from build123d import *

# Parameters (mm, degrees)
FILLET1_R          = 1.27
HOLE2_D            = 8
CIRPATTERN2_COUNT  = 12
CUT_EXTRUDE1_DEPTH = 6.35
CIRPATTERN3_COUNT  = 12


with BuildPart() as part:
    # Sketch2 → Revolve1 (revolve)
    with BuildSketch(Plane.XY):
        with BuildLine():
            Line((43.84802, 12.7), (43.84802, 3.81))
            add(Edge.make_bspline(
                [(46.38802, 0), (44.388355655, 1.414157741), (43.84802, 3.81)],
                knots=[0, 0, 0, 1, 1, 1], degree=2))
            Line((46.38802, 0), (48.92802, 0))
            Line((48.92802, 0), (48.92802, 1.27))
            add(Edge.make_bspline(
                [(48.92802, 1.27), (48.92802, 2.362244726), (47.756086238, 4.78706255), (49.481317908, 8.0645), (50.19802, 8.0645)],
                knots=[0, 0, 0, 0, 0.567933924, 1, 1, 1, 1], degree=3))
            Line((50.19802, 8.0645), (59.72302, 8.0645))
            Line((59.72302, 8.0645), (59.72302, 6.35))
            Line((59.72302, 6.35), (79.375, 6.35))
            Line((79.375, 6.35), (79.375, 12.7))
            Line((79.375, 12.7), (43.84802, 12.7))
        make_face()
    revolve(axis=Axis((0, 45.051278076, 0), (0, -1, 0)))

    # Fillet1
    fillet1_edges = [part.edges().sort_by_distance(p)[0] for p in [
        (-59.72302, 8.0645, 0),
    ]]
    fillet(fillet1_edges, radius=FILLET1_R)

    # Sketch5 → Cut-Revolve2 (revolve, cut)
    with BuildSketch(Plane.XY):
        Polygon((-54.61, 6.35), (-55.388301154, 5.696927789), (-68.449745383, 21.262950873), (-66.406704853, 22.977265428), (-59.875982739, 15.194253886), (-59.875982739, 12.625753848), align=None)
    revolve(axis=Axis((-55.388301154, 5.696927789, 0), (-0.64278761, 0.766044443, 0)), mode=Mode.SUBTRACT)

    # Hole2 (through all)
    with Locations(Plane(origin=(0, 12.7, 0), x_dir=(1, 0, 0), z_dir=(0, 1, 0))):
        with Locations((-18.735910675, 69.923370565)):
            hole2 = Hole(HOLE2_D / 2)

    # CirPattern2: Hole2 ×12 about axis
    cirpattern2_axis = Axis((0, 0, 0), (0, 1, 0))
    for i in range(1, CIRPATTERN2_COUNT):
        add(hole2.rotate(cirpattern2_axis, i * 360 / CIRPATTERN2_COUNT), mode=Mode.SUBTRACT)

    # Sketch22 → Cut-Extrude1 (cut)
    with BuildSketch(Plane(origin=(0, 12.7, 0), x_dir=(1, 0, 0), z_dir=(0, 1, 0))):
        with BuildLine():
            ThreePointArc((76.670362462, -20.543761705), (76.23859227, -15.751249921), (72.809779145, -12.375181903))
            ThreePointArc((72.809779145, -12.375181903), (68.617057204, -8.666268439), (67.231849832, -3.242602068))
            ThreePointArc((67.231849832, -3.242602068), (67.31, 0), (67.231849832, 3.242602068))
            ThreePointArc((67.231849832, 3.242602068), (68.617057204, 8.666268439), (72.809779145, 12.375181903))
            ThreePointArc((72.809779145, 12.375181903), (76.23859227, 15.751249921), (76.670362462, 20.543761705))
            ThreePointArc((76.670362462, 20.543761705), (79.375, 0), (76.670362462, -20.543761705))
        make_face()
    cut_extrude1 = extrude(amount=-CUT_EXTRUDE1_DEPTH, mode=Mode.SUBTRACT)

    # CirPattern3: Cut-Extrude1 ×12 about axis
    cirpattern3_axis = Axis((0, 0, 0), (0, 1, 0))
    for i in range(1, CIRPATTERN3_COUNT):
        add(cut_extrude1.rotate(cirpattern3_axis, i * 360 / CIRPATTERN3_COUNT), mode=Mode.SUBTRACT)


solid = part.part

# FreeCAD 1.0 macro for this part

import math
import FreeCAD as App
import Part
import Sketcher

V = App.Vector
Q = App.Units.Quantity


def edges_at(feature, points):
    """Names of the edges that pass closest to the given points."""
    edges = feature.Shape.Edges
    near = lambda p: min(range(len(edges)), key=lambda i: edges[i].distToShape(Part.Vertex(*p))[0])
    return sorted({f"Edge{near(p) + 1}" for p in points})


def add_polygon(sketch, points):
    """Adds a closed chain of lines whose ends are joined by coincident constraints."""
    first, n = sketch.GeometryCount, len(points)
    for a, b in zip(points, points[1:] + points[:1]):
        sketch.addGeometry(Part.LineSegment(App.Vector(*a, 0), App.Vector(*b, 0)), False)
    for i in range(n):
        sketch.addConstraint(Sketcher.Constraint("Coincident", first + i, 2, first + (i + 1) % n, 1))

doc = App.newDocument("Part")
body = doc.addObject("PartDesign::Body", "Body")

# Sketch on XY plane
sketch1 = doc.addObject("Sketcher::SketchObject", "Sketch")
body.addObject(sketch1)
sketch1.AttachmentSupport = (doc.XY_Plane, [""])
sketch1.MapMode = "FlatFace"
sketch1.addGeometry(Part.LineSegment(V(43.84802, 12.7, 0), V(43.84802, 3.81, 0)), False)
sketch1.addGeometry(Part.BSplineCurve([V(46.38802, 0, 0), V(44.388356, 1.414158, 0), V(43.84802, 3.81, 0)], [3, 3], [0, 1], False, 2, [1, 1, 1], False), False)
sketch1.addGeometry(Part.LineSegment(V(46.38802, 0, 0), V(48.92802, 0, 0)), False)
sketch1.addGeometry(Part.LineSegment(V(48.92802, 0, 0), V(48.92802, 1.27, 0)), False)
sketch1.addGeometry(Part.BSplineCurve([V(48.92802, 1.27, 0), V(48.92802, 2.362245, 0), V(47.756086, 4.787063, 0), V(49.481318, 8.0645, 0), V(50.19802, 8.0645, 0)], [4, 1, 4], [0, 0.567933924, 1], False, 3, [1, 1, 1, 1, 1], False), False)
sketch1.addGeometry(Part.LineSegment(V(50.19802, 8.0645, 0), V(59.72302, 8.0645, 0)), False)
sketch1.addGeometry(Part.LineSegment(V(59.72302, 8.0645, 0), V(59.72302, 6.35, 0)), False)
sketch1.addGeometry(Part.LineSegment(V(59.72302, 6.35, 0), V(79.375, 6.35, 0)), False)
sketch1.addGeometry(Part.LineSegment(V(79.375, 6.35, 0), V(79.375, 12.7, 0)), False)
sketch1.addGeometry(Part.LineSegment(V(79.375, 12.7, 0), V(43.84802, 12.7, 0)), False)
sketch1.addConstraint(Sketcher.Constraint("Block", 1))
sketch1.addConstraint(Sketcher.Constraint("Block", 4))
sketch1.addConstraint(Sketcher.Constraint("Coincident", 0, 2, 1, 2))
sketch1.addConstraint(Sketcher.Constraint("Coincident", 1, 1, 2, 1))
sketch1.addConstraint(Sketcher.Constraint("Coincident", 2, 2, 3, 1))
sketch1.addConstraint(Sketcher.Constraint("Coincident", 3, 2, 4, 1))
sketch1.addConstraint(Sketcher.Constraint("Coincident", 4, 2, 5, 1))
sketch1.addConstraint(Sketcher.Constraint("Coincident", 5, 2, 6, 1))
sketch1.addConstraint(Sketcher.Constraint("Coincident", 6, 2, 7, 1))
sketch1.addConstraint(Sketcher.Constraint("Coincident", 7, 2, 8, 1))
sketch1.addConstraint(Sketcher.Constraint("Coincident", 8, 2, 9, 1))
sketch1.addConstraint(Sketcher.Constraint("Coincident", 9, 2, 0, 1))
sketch1.addConstraint(Sketcher.Constraint("Vertical", 0))
sketch1.addConstraint(Sketcher.Constraint("Horizontal", 2))
sketch1.addConstraint(Sketcher.Constraint("Vertical", 3))
sketch1.addConstraint(Sketcher.Constraint("Horizontal", 5))
sketch1.addConstraint(Sketcher.Constraint("Vertical", 6))
sketch1.addConstraint(Sketcher.Constraint("Horizontal", 7))
sketch1.addConstraint(Sketcher.Constraint("Vertical", 8))
sketch1.addConstraint(Sketcher.Constraint("Horizontal", 9))
sketch1.addConstraint(Sketcher.Constraint("DistanceY", 0, 2, 0, 1, Q("0.35 in")))
sketch1.addConstraint(Sketcher.Constraint("DistanceY", 8, 1, 8, 2, Q("0.25 in")))
sketch1.addConstraint(Sketcher.Constraint("DistanceX", 5, 1, 5, 2, Q("0.375 in")))
sketch1.addConstraint(Sketcher.Constraint("DistanceX", 7, 1, 7, 2, Q("0.7737 in")))
revolution = doc.addObject("PartDesign::Revolution", "Revolution")
body.addObject(revolution)
revolution.Profile = sketch1
revolution.ReferenceAxis = (sketch1, ["V_Axis"])
revolution.Angle = 360
doc.recompute()

fillet = doc.addObject("PartDesign::Fillet", "Fillet")
body.addObject(fillet)
fillet.Base = (revolution, edges_at(revolution, [(-59.723, 8.065, 0)]))
fillet.Radius = Q("0.05 in")

# Sketch on XY plane
sketch2 = doc.addObject("Sketcher::SketchObject", "Sketch001")
body.addObject(sketch2)
sketch2.AttachmentSupport = (doc.XY_Plane, [""])
sketch2.MapMode = "FlatFace"
add_polygon(sketch2, [(-55.4, 5.7), (-54.6, 6.3), (-59.9, 12.6), (-59.9, 15.2), (-66.4, 23), (-68.4, 21.3)])  # lines 0-5
sketch2.addGeometry(Part.LineSegment(V(-55.4, 5.7, 0), V(-68.4, 21.3, 0)), True)  # axis
sketch2.addConstraint(Sketcher.Constraint("Vertical", 2))
sketch2.addConstraint(Sketcher.Constraint("Coincident", 6, 1, 5, 2))
sketch2.addConstraint(Sketcher.Constraint("Coincident", 6, 2, 4, 2))
sketch2.addConstraint(Sketcher.Constraint("Perpendicular", 0, 1))
sketch2.addConstraint(Sketcher.Constraint("Parallel", 1, 3))
sketch2.addConstraint(Sketcher.Constraint("Perpendicular", 3, 4))
sketch2.addConstraint(Sketcher.Constraint("Perpendicular", 4, 5))
sketch2.addConstraint(Sketcher.Constraint("Angle", 0, Q("40 deg")))
sketch2.addConstraint(Sketcher.Constraint("Distance", 3, Q("0.4 in")))
sketch2.addConstraint(Sketcher.Constraint("Distance", 5, Q("0.8 in")))
sketch2.addConstraint(Sketcher.Constraint("Distance", 0, Q("0.04 in")))
sketch2.addConstraint(Sketcher.Constraint("DistanceX", 0, 2, -1, 1, Q("2.15 in")))
sketch2.addConstraint(Sketcher.Constraint("DistanceY", -1, 1, 0, 2, Q("0.25 in")))
sketch2.addConstraint(Sketcher.Constraint("Distance", 4, Q("0.105 in")))
groove = doc.addObject("PartDesign::Groove", "Groove")
body.addObject(groove)
groove.Profile = sketch2
groove.ReferenceAxis = (sketch2, ["Axis0"])
groove.Angle = 360

# Sketch on XZ plane
sketch3 = doc.addObject("Sketcher::SketchObject", "Sketch002")
body.addObject(sketch3)
sketch3.AttachmentSupport = (doc.XZ_Plane, [""])
sketch3.MapMode = "FlatFace"
sketch3.AttachmentOffset = App.Placement(V(0, 0, -0.5 * 25.4), App.Rotation())
sketch3.addGeometry(Part.Circle(V(-18.7, -69.9, 0), V(0, 0, 1), 4), False)
sketch3.addConstraint(Sketcher.Constraint("Diameter", 0, 8.0))
sketch3.addConstraint(Sketcher.Constraint("DistanceX", 0, 3, -1, 1, 18.735911))
sketch3.addConstraint(Sketcher.Constraint("DistanceY", 0, 3, -1, 1, 69.923371))
doc.recompute()
hole = doc.addObject("PartDesign::Hole", "Hole")
body.addObject(hole)
hole.Profile = sketch3
hole.ThreadType = "None"
hole.Diameter = 8
hole.DepthType = "ThroughAll"
hole.Reversed = True
doc.recompute()

polarpattern = doc.addObject("PartDesign::PolarPattern", "PolarPattern")
body.addObject(polarpattern)
polarpattern.Originals = [hole]
polarpattern.Axis = (doc.Y_Axis, [""])
polarpattern.Angle = 360
polarpattern.Occurrences = 12
body.Tip = polarpattern

# Sketch on XZ plane
sketch4 = doc.addObject("Sketcher::SketchObject", "Sketch003")
body.addObject(sketch4)
sketch4.AttachmentSupport = (doc.XZ_Plane, [""])
sketch4.MapMode = "FlatFace"
sketch4.AttachmentOffset = App.Placement(V(0, 0, -0.5 * 25.4), App.Rotation())
sketch4.addGeometry(Part.ArcOfCircle(Part.Circle(V(70, 19, 0), V(0, 0, 1), 7), math.radians(-66), math.radians(15)), False)
sketch4.addGeometry(Part.ArcOfCircle(Part.Circle(V(0, 0, 0), V(0, 0, 1), 79), math.radians(-15), math.radians(15)), False)
sketch4.addGeometry(Part.ArcOfCircle(Part.Circle(V(70, -19, 0), V(0, 0, 1), 7), math.radians(-15), math.radians(66)), False)
sketch4.addGeometry(Part.ArcOfCircle(Part.Circle(V(77, -4, 0), V(0, 0, 1), 10), math.radians(177), math.radians(246)), False)
sketch4.addGeometry(Part.ArcOfCircle(Part.Circle(V(0, 0, 0), V(0, 0, 1), 67), math.radians(-2.76), math.radians(2.76)), False)
sketch4.addGeometry(Part.ArcOfCircle(Part.Circle(V(77, 4, 0), V(0, 0, 1), 10), math.radians(114), math.radians(183)), False)
sketch4.addConstraint(Sketcher.Constraint("Tangent", 0, 2, 1, 2))
sketch4.addConstraint(Sketcher.Constraint("Tangent", 1, 1, 2, 1))
sketch4.addConstraint(Sketcher.Constraint("Tangent", 2, 2, 3, 2))
sketch4.addConstraint(Sketcher.Constraint("Tangent", 3, 1, 4, 1))
sketch4.addConstraint(Sketcher.Constraint("Tangent", 4, 2, 5, 2))
sketch4.addConstraint(Sketcher.Constraint("Tangent", 5, 1, 0, 1))
sketch4.addConstraint(Sketcher.Constraint("Coincident", 1, 3, -1, 1))
sketch4.addConstraint(Sketcher.Constraint("Coincident", 4, 3, -1, 1))
sketch4.addConstraint(Sketcher.Constraint("Equal", 0, 2))
sketch4.addConstraint(Sketcher.Constraint("Equal", 3, 5))
sketch4.addConstraint(Sketcher.Constraint("Vertical", 0, 3, 2, 3))
sketch4.addConstraint(Sketcher.Constraint("Radius", 4, Q("2.65 in")))
sketch4.addConstraint(Sketcher.Constraint("Radius", 0, Q("0.275 in")))
sketch4.addConstraint(Sketcher.Constraint("Radius", 1, Q("3.125 in")))
sketch4.addConstraint(Sketcher.Constraint("Radius", 3, Q("0.375 in")))
sketch4.addConstraint(Sketcher.Constraint("DistanceX", -1, 1, 0, 3, 69.923371))
pocket1 = doc.addObject("PartDesign::Pocket", "Pocket")
body.addObject(pocket1)
pocket1.Profile = sketch4
pocket1.Length = Q("0.25 in")
pocket1.Reversed = True
doc.recompute()

polarpattern2 = doc.addObject("PartDesign::PolarPattern", "PolarPattern001")
body.addObject(polarpattern2)
polarpattern2.Originals = [pocket1]
polarpattern2.Axis = (doc.Y_Axis, [""])
polarpattern2.Angle = 360
polarpattern2.Occurrences = 12
body.Tip = polarpattern2

doc.recompute()
